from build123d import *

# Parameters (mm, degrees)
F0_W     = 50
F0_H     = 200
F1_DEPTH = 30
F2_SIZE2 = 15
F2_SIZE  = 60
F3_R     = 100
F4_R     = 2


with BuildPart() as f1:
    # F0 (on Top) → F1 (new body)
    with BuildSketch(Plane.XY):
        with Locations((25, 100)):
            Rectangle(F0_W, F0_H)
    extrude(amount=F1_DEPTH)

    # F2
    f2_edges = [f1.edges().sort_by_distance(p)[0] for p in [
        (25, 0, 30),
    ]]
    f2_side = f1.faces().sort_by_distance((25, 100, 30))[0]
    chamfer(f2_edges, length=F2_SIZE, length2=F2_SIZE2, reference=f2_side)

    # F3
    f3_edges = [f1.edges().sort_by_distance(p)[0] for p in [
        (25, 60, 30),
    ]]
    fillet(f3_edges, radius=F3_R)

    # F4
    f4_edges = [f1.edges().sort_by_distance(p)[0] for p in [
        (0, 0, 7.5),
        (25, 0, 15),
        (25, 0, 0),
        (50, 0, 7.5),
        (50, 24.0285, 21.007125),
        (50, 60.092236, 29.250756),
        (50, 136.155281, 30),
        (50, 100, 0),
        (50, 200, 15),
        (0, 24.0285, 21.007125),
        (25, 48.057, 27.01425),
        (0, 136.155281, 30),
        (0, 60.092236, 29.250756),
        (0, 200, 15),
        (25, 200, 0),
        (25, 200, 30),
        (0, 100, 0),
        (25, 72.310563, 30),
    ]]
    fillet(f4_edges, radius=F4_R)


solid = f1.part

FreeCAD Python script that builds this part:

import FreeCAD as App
import Part
import Sketcher

V = App.Vector
Q = App.Units.Quantity


def edges_at(feature, points):
    """Names of the edges that pass closest to the given points."""
    edges = feature.Shape.Edges
    near = lambda p: min(range(len(edges)), key=lambda i: edges[i].distToShape(Part.Vertex(*p))[0])
    return sorted({f"Edge{near(p) + 1}" for p in points})


def add_polygon(sketch, points):
    """Adds a closed chain of lines whose ends are joined by coincident constraints."""
    first, n = sketch.GeometryCount, len(points)
    for a, b in zip(points, points[1:] + points[:1]):
        sketch.addGeometry(Part.LineSegment(App.Vector(*a, 0), App.Vector(*b, 0)), False)
    for i in range(n):
        sketch.addConstraint(Sketcher.Constraint("Coincident", first + i, 2, first + (i + 1) % n, 1))

doc = App.newDocument("Part")
body = doc.addObject("PartDesign::Body", "Body")

# Sketch on XY plane
sketch1 = body.newObject("Sketcher::SketchObject", "Sketch")
sketch1.AttachmentSupport = (doc.getObject("XY_Plane"), [""])
sketch1.MapMode = "FlatFace"
add_polygon(sketch1, [(0, 200), (0, 0), (50, 0), (50, 200)])  # lines 0-3
sketch1.addConstraint([
    Sketcher.Constraint("Vertical", 0),
    Sketcher.Constraint("Horizontal", 1),
    Sketcher.Constraint("Vertical", 2),
    Sketcher.Constraint("Horizontal", 3),
    Sketcher.Constraint("Coincident", 0, 2, -1, 1),
    Sketcher.Constraint("DistanceX", 1, 1, 1, 2, Q("50 mm")),
    Sketcher.Constraint("DistanceY", 0, 2, 0, 1, Q("200 mm")),
])
pad1 = body.newObject("PartDesign::Pad", "Pad")
pad1.Profile = sketch1
pad1.Length = 30
doc.recompute()

chamfer = body.newObject("PartDesign::Chamfer", "Chamfer")
chamfer.Base = (pad1, edges_at(pad1, [(25, 0, 30)]))
chamfer.ChamferType = "Two distances"
chamfer.Size = 60
chamfer.Size2 = 15
chamfer.FlipDirection = True
doc.recompute()

fillet = body.newObject("PartDesign::Fillet", "Fillet")
fillet.Base = (chamfer, edges_at(chamfer, [(25, 60, 30)]))
fillet.Radius = 100
doc.recompute()

fillet2 = body.newObject("PartDesign::Fillet", "Fillet001")
fillet2.Base = (fillet, ["Edge1"])
fillet2.UseAllEdges = True
fillet2.Radius = 2

doc.recompute()
